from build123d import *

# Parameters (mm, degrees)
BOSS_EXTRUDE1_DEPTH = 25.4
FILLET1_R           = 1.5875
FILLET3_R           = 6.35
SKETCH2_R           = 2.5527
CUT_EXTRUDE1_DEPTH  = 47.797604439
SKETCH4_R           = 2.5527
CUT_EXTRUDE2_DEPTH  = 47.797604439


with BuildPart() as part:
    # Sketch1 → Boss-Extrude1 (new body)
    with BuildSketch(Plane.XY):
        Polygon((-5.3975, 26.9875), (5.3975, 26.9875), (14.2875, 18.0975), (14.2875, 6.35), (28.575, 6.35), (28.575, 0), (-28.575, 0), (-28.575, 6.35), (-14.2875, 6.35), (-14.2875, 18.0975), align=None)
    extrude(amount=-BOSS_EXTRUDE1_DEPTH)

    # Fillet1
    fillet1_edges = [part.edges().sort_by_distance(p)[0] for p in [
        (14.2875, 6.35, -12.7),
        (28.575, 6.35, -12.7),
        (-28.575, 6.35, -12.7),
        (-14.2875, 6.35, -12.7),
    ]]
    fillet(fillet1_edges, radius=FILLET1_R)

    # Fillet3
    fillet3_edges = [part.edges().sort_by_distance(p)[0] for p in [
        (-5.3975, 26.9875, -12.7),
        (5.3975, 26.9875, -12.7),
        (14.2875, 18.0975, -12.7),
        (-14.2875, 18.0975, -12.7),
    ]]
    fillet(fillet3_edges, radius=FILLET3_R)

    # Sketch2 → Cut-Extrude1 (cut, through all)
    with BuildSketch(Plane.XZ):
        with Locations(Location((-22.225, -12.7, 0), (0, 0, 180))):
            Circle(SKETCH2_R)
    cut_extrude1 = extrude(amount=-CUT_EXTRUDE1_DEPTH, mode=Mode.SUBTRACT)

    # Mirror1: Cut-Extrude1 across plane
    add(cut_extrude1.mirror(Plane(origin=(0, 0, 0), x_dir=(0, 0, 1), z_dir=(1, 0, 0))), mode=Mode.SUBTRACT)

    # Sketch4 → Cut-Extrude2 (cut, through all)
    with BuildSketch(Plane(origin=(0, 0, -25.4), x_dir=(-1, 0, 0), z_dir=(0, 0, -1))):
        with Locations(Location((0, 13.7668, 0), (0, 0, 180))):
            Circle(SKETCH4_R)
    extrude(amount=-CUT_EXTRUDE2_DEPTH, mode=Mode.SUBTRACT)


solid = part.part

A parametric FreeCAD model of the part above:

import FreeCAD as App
import Part
import Sketcher
from FreeCAD import Vector
Q = App.Units.Quantity


def edges_at(feature, points):
    """Names of the edges that pass closest to the given points."""
    edges = feature.Shape.Edges
    near = lambda p: min(range(len(edges)), key=lambda i: edges[i].distToShape(Part.Vertex(*p))[0])
    return sorted({f"Edge{near(p) + 1}" for p in points})


def add_polygon(sketch, points):
    """Adds a closed chain of lines whose ends are joined by coincident constraints."""
    first, n = sketch.GeometryCount, len(points)
    for a, b in zip(points, points[1:] + points[:1]):
        sketch.addGeometry(Part.LineSegment(App.Vector(*a, 0), App.Vector(*b, 0)), False)
    for i in range(n):
        sketch.addConstraint(Sketcher.Constraint("Coincident", first + i, 2, first + (i + 1) % n, 1))

doc = App.newDocument("Part")
params = doc.addObject("Spreadsheet::Sheet", "Params")
for row, (alias, value) in enumerate([
    ("sketch1_width", "2.25 in"),
    ("sketch1_height", "0.25 in"),
    ("sketch1_width2", "0.425 in"),
    ("sketch1_width3", "0.5625 in"),
    ("pad1_length", "1 in"),
    ("fillet_radius", "0.0625 in"),
    ("fillet2_radius", "0.25 in"),
    ("sketch2_diameter", "0.201 in"),
    ("sketch3_diameter", "0.201 in"),
], start=1):
    params.set(f"A{row}", alias)
    params.set(f"B{row}", "=" + value)
    params.setAlias(f"B{row}", alias)

body = doc.addObject("PartDesign::Body", "Body")

sketch1 = doc.addObject("Sketcher::SketchObject", "Sketch")
body.addObject(sketch1)
sketch1.AttachmentSupport = (doc.XY_Plane, [""])
sketch1.MapMode = "FlatFace"
add_polygon(sketch1, [(5.3975, 26.9875), (-5.3975, 26.9875), (-14.2875, 18.0975), (-14.2875, 6.35), (-28.575, 6.35), (-28.575, 0), (28.575, 0), (28.575, 6.35), (14.2875, 6.35), (14.2875, 18.0975)])
sketch1.addConstraint([
    Sketcher.Constraint("Horizontal", 0),
    Sketcher.Constraint("Vertical", 2),
    Sketcher.Constraint("Horizontal", 3),
    Sketcher.Constraint("Vertical", 4),
    Sketcher.Constraint("Horizontal", 5),
    Sketcher.Constraint("Vertical", 6),
    Sketcher.Constraint("Horizontal", 7),
    Sketcher.Constraint("Vertical", 8),
    Sketcher.Constraint("Symmetric", 4, 2, 5, 2, -1, 1),
    Sketcher.Constraint("Symmetric", 2, 2, 7, 2, -2),
    Sketcher.Constraint("Perpendicular", 1, 9),
    Sketcher.Constraint("Horizontal", 1, 2, 8, 2),
    Sketcher.Constraint("Equal", 1, 9),
    Sketcher.Constraint("DistanceX", 5, 1, 5, 2, Q("2.25 in")),
    Sketcher.Constraint("DistanceY", 4, 2, 4, 1, Q("0.25 in")),
    Sketcher.Constraint("DistanceX", 0, 2, 0, 1, Q("0.425 in")),
    Sketcher.Constraint("DistanceX", 3, 2, 3, 1, Q("0.5625 in")),
    Sketcher.Constraint("DistanceY", 2, 2, 2, 1, Q("0.4625 in")),
])
sketch1.setExpression("Constraints[23]", "Params.sketch1_width")
sketch1.setExpression("Constraints[24]", "Params.sketch1_height")
sketch1.setExpression("Constraints[25]", "Params.sketch1_width2")
sketch1.setExpression("Constraints[26]", "Params.sketch1_width3")
pad1 = doc.addObject("PartDesign::Pad", "Pad")
body.addObject(pad1)
pad1.Profile = sketch1
pad1.setExpression("Length", "Params.pad1_length")
pad1.Reversed = True
doc.recompute()

fillet = doc.addObject("PartDesign::Fillet", "Fillet")
body.addObject(fillet)
fillet.Base = (pad1, edges_at(pad1, [
    (14.287, 6.35, -12.7),
    (28.575, 6.35, -12.7),
    (-28.575, 6.35, -12.7),
    (-14.287, 6.35, -12.7),
]))
fillet.setExpression("Radius", "Params.fillet_radius")
doc.recompute()

fillet2 = doc.addObject("PartDesign::Fillet", "Fillet001")
body.addObject(fillet2)
fillet2.Base = (fillet, edges_at(fillet, [
    (-5.397, 26.988, -12.7),
    (5.397, 26.988, -12.7),
    (14.287, 18.098, -12.7),
    (-14.287, 18.098, -12.7),
]))
fillet2.setExpression("Radius", "Params.fillet2_radius")

sketch2 = doc.addObject("Sketcher::SketchObject", "Sketch001")
body.addObject(sketch2)
sketch2.AttachmentSupport = (doc.XZ_Plane, [""])
sketch2.MapMode = "FlatFace"
sketch2.addGeometry(Part.Circle(Vector(-22.225, -12.7, 0), Vector(0, 0, 1), 2.5527), False)
sketch2.addConstraint([
    Sketcher.Constraint("Diameter", 0, Q("0.201 in")),
    Sketcher.Constraint("DistanceY", 0, 3, -1, 1, Q("0.5 in")),
    Sketcher.Constraint("DistanceX", 0, 3, -1, 1, Q("0.875 in")),
])
sketch2.setExpression("Constraints[0]", "Params.sketch2_diameter")
pocket1 = doc.addObject("PartDesign::Pocket", "Pocket")
body.addObject(pocket1)
pocket1.Profile = sketch2
pocket1.Type = "ThroughAll"
doc.recompute()

mirrored = doc.addObject("PartDesign::Mirrored", "Mirrored")
body.addObject(mirrored)
mirrored.Originals = [pocket1]
mirrored.MirrorPlane = (doc.YZ_Plane, [""])
body.Tip = mirrored

sketch3 = doc.addObject("Sketcher::SketchObject", "Sketch002")
body.addObject(sketch3)
sketch3.AttachmentSupport = (doc.XY_Plane, [""])
sketch3.MapMode = "FlatFace"
sketch3.AttachmentOffset = App.Placement(Vector(0, 0, -1 * 25.4), App.Rotation())
sketch3.addGeometry(Part.Circle(Vector(0, 13.7668, 0), Vector(0, 0, 1), 2.5527), False)
sketch3.addConstraint([
    Sketcher.Constraint("PointOnObject", 0, 3, -2),
    Sketcher.Constraint("Diameter", 0, Q("0.201 in")),
    Sketcher.Constraint("DistanceY", -1, 1, 0, 3, Q("0.542 in")),
])
sketch3.setExpression("Constraints[1]", "Params.sketch3_diameter")
pocket2 = doc.addObject("PartDesign::Pocket", "Pocket001")
body.addObject(pocket2)
pocket2.Profile = sketch3
pocket2.Type = "ThroughAll"
pocket2.Reversed = True

doc.recompute()
